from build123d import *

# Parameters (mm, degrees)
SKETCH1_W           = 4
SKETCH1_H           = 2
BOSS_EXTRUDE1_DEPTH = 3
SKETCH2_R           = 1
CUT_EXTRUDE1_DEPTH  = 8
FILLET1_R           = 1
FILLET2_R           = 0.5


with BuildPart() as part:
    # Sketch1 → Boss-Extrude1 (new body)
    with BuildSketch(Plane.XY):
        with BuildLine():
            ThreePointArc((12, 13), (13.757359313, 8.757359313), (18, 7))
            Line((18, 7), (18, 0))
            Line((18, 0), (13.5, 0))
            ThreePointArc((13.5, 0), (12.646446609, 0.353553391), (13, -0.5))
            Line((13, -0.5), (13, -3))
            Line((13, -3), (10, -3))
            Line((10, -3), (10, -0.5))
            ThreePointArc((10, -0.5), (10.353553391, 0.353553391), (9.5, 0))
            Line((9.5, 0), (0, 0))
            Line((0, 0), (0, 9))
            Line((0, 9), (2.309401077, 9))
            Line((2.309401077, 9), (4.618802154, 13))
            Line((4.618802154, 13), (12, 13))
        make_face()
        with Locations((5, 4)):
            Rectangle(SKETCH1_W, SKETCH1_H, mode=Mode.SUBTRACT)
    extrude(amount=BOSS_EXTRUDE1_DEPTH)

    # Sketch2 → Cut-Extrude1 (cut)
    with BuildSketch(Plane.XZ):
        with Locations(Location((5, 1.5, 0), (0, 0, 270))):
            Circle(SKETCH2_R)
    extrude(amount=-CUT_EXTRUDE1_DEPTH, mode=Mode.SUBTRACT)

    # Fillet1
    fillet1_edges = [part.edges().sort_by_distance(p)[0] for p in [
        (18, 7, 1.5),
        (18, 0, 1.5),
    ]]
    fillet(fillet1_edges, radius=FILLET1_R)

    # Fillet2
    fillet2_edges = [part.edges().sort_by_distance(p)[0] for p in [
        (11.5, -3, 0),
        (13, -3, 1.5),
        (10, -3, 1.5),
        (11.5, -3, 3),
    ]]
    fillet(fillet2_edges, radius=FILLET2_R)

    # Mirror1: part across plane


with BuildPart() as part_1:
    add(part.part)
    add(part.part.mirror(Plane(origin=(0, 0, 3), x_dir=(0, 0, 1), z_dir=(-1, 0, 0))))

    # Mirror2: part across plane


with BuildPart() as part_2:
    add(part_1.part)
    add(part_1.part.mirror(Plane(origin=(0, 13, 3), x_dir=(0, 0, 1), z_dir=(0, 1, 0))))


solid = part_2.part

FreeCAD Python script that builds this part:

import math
import FreeCAD as App
import Part
import Sketcher
Q = App.Units.Quantity


def edges_at(feature, points):
    """Names of the edges that pass closest to the given points."""
    edges = feature.Shape.Edges
    near = lambda p: min(range(len(edges)), key=lambda i: edges[i].distToShape(Part.Vertex(*p))[0])
    return sorted({f"Edge{near(p) + 1}" for p in points})

doc = App.newDocument("Part")
body = doc.addObject("PartDesign::Body", "Body")

# Sketch on XY plane
sketch1 = body.newObject("Sketcher::SketchObject", "Sketch")
sketch1.AttachmentSupport = (doc.getObject("XY_Plane"), [""])
sketch1.MapMode = "FlatFace"
sketch1.addGeometry([
    Part.ArcOfCircle(Part.Circle(App.Vector(18, 13, 0), App.Vector(0, 0, 1), 6), math.radians(180), math.radians(270)),  # 0
    Part.LineSegment(App.Vector(12, 13, 0), App.Vector(4.618802, 13, 0)),  # 1
    Part.LineSegment(App.Vector(4.618802, 13, 0), App.Vector(2.309401, 9, 0)),  # 2
    Part.LineSegment(App.Vector(2.309401, 9, 0), App.Vector(0, 9, 0)),  # 3
    Part.LineSegment(App.Vector(0, 9, 0), App.Vector(0, 0, 0)),  # 4
    Part.LineSegment(App.Vector(0, 0, 0), App.Vector(9.5, 0, 0)),  # 5
    Part.ArcOfCircle(Part.Circle(App.Vector(10, 0, 0), App.Vector(0, 0, 1), 0.5), math.radians(-90), math.radians(180)),  # 6
    Part.LineSegment(App.Vector(10, -0.5, 0), App.Vector(10, -3, 0)),  # 7
    Part.LineSegment(App.Vector(10, -3, 0), App.Vector(13, -3, 0)),  # 8
    Part.LineSegment(App.Vector(13, -3, 0), App.Vector(13, -0.5, 0)),  # 9
    Part.ArcOfCircle(Part.Circle(App.Vector(13, 0, 0), App.Vector(0, 0, 1), 0.5), math.radians(0), math.radians(270)),  # 10
    Part.LineSegment(App.Vector(13.5, 0, 0), App.Vector(18, 0, 0)),  # 11
    Part.LineSegment(App.Vector(18, 0, 0), App.Vector(18, 7, 0)),  # 12
    Part.LineSegment(App.Vector(3, 3, 0), App.Vector(3, 5, 0)),  # 13
    Part.LineSegment(App.Vector(3, 5, 0), App.Vector(7, 5, 0)),  # 14
    Part.LineSegment(App.Vector(7, 5, 0), App.Vector(7, 3, 0)),  # 15
    Part.LineSegment(App.Vector(7, 3, 0), App.Vector(3, 3, 0)),  # 16
], False)
sketch1.addConstraint([
    Sketcher.Constraint("Coincident", 0, 1, 1, 1),
    Sketcher.Constraint("Coincident", 1, 2, 2, 1),
    Sketcher.Constraint("Coincident", 2, 2, 3, 1),
    Sketcher.Constraint("Coincident", 3, 2, 4, 1),
    Sketcher.Constraint("Coincident", 4, 2, 5, 1),
    Sketcher.Constraint("Coincident", 5, 2, 6, 2),
    Sketcher.Constraint("Coincident", 6, 1, 7, 1),
    Sketcher.Constraint("Coincident", 7, 2, 8, 1),
    Sketcher.Constraint("Coincident", 8, 2, 9, 1),
    Sketcher.Constraint("Coincident", 9, 2, 10, 2),
    Sketcher.Constraint("Coincident", 10, 1, 11, 1),
    Sketcher.Constraint("Coincident", 11, 2, 12, 1),
    Sketcher.Constraint("Coincident", 12, 2, 0, 2),
    Sketcher.Constraint("Coincident", 13, 2, 14, 1),
    Sketcher.Constraint("Coincident", 14, 2, 15, 1),
    Sketcher.Constraint("Coincident", 15, 2, 16, 1),
    Sketcher.Constraint("Coincident", 16, 2, 13, 1),
    Sketcher.Constraint("Horizontal", 1),
    Sketcher.Constraint("Horizontal", 3),
    Sketcher.Constraint("Vertical", 4),
    Sketcher.Constraint("Horizontal", 5),
    Sketcher.Constraint("Vertical", 7),
    Sketcher.Constraint("Horizontal", 8),
    Sketcher.Constraint("Vertical", 9),
    Sketcher.Constraint("Horizontal", 11),
    Sketcher.Constraint("Vertical", 12),
    Sketcher.Constraint("Vertical", 13),
    Sketcher.Constraint("Horizontal", 14),
    Sketcher.Constraint("Vertical", 15),
    Sketcher.Constraint("Horizontal", 16),
    Sketcher.Constraint("Coincident", 4, 2, -1, 1),
    Sketcher.Constraint("Equal", 6, 10),
    Sketcher.Constraint("PointOnObject", 6, 3, -1),
    Sketcher.Constraint("PointOnObject", 10, 3, -1),
    Sketcher.Constraint("PointOnObject", 10, 1, -1),
    Sketcher.Constraint("Vertical", 10, 3, 8, 2),
    Sketcher.Constraint("Vertical", 0, 3, 11, 2),
    Sketcher.Constraint("Radius", 0, Q("6 mm")),
    Sketcher.Constraint("Radius", 6, Q("0.5 mm")),
    Sketcher.Constraint("DistanceX", 8, 1, 8, 2, Q("3 mm")),
    Sketcher.Constraint("DistanceX", 14, 1, 14, 2, Q("4 mm")),
    Sketcher.Constraint("DistanceY", 4, 2, 4, 1, Q("9 mm")),
    Sketcher.Constraint("DistanceY", 12, 1, 12, 2, Q("7 mm")),
    Sketcher.Constraint("DistanceY", 13, 1, 13, 2, Q("2 mm")),
    Sketcher.Constraint("Angle", 2, Q("-120 deg")),
    Sketcher.Constraint("DistanceX", 5, 1, 5, 2, Q("9.5 mm")),
    Sketcher.Constraint("DistanceX", 11, 1, 11, 2, Q("4.5 mm")),
    Sketcher.Constraint("DistanceY", 7, 2, 7, 1, Q("2.5 mm")),
    Sketcher.Constraint("DistanceX", -1, 1, 0, 3, Q("18 mm")),
    Sketcher.Constraint("DistanceY", -1, 1, 0, 1, Q("13 mm")),
    Sketcher.Constraint("DistanceX", -1, 1, 13, 2, Q("3 mm")),
    Sketcher.Constraint("DistanceY", -1, 1, 13, 2, Q("5 mm")),
    Sketcher.Constraint("DistanceX", 3, 2, 3, 1, Q("2.309401 mm")),
])
pad1 = body.newObject("PartDesign::Pad", "Pad")
pad1.Profile = sketch1
pad1.Length = 3

# Sketch on XZ plane
sketch2 = body.newObject("Sketcher::SketchObject", "Sketch001")
sketch2.AttachmentSupport = (doc.getObject("XZ_Plane"), [""])
sketch2.MapMode = "FlatFace"
sketch2.addGeometry(Part.Circle(App.Vector(5, 1.5, 0), App.Vector(0, 0, 1), 1), False)
sketch2.addConstraint([
    Sketcher.Constraint("Diameter", 0, Q("2 mm")),
    Sketcher.Constraint("DistanceX", -1, 1, 0, 3, Q("5 mm")),
    Sketcher.Constraint("DistanceY", -1, 1, 0, 3, Q("1.5 mm")),
])
pocket1 = body.newObject("PartDesign::Pocket", "Pocket")
pocket1.Profile = sketch2
pocket1.Length = 8
doc.recompute()

fillet = body.newObject("PartDesign::Fillet", "Fillet")
fillet.Base = (pocket1, edges_at(pocket1, [(18, 7, 1.5), (18, 0, 1.5)]))
fillet.Radius = 1
doc.recompute()

fillet2 = body.newObject("PartDesign::Fillet", "Fillet001")
fillet2.Base = (fillet, edges_at(fillet, [
    (11.5, -3, 0),
    (13, -3, 1.5),
    (10, -3, 1.5),
    (11.5, -3, 3),
]))
fillet2.Radius = 0.5
body2 = doc.addObject("PartDesign::Body", "Body001")
doc.recompute()

body2.BaseFeature = body
doc.recompute()

mirroring = doc.addObject("Part::Mirroring", "Mirroring")
mirroring.Source = body
mirroring.Base = App.Vector(0, 0, 3)
mirroring.Normal = App.Vector(-1, 0, 0)
body3 = doc.addObject("PartDesign::Body", "Body002")
body3.BaseFeature = mirroring
boolean = body2.newObject("PartDesign::Boolean", "Boolean")
boolean.Type = "Fuse"
boolean.addObjects([body3])
doc.recompute()
body4 = doc.addObject("PartDesign::Body", "Body003")
doc.recompute()

body4.BaseFeature = body2
doc.recompute()

mirroring2 = doc.addObject("Part::Mirroring", "Mirroring001")
mirroring2.Source = body2
mirroring2.Base = App.Vector(0, 13, 3)
mirroring2.Normal = App.Vector(0, 1, 0)
body5 = doc.addObject("PartDesign::Body", "Body004")
body5.BaseFeature = mirroring2
boolean2 = body4.newObject("PartDesign::Boolean", "Boolean001")
boolean2.Type = "Fuse"
boolean2.addObjects([body5])
doc.recompute()
mirroring.Visibility = False
mirroring2.Visibility = False

doc.recompute()
